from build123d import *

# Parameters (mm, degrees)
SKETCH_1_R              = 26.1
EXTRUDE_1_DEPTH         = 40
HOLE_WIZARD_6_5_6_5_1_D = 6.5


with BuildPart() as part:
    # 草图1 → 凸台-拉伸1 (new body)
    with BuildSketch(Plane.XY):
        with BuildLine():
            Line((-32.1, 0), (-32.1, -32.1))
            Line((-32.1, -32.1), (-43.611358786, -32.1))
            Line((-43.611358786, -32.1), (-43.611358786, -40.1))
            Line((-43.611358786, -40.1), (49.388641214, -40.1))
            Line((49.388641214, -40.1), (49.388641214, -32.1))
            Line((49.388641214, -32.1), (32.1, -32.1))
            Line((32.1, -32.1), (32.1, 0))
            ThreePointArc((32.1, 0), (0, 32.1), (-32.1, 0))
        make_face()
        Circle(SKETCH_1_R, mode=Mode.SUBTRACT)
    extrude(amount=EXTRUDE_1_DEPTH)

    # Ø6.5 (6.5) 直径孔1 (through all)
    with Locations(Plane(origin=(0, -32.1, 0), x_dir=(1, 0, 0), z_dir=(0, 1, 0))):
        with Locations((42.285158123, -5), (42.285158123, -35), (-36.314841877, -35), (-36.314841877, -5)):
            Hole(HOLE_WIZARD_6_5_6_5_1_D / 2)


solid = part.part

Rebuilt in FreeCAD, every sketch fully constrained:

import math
import FreeCAD as App
import Part
import Sketcher

V = App.Vector
Q = App.Units.Quantity

doc = App.newDocument("Part")
body = doc.addObject("PartDesign::Body", "Body")

# Sketch on XY plane
sketch1 = body.newObject("Sketcher::SketchObject", "Sketch")
sketch1.AttachmentSupport = (doc.getObject("XY_Plane"), [""])
sketch1.MapMode = "FlatFace"
sketch1.addGeometry([
    Part.LineSegment(V(-32, 0, 0), V(-32, -32, 0)),  # 0
    Part.LineSegment(V(-32, -32, 0), V(-44, -32, 0)),  # 1
    Part.LineSegment(V(-44, -32, 0), V(-44, -40, 0)),  # 2
    Part.LineSegment(V(-44, -40, 0), V(49, -40, 0)),  # 3
    Part.LineSegment(V(49, -40, 0), V(49, -32, 0)),  # 4
    Part.LineSegment(V(49, -32, 0), V(32, -32, 0)),  # 5
    Part.LineSegment(V(32, -32, 0), V(32, 0, 0)),  # 6
    Part.ArcOfCircle(Part.Circle(V(0, 0, 0), V(0, 0, 1), 32), math.radians(0), math.radians(180)),  # 7
    Part.Circle(V(0, 0, 0), V(0, 0, 1), 26),  # 8
], False)
sketch1.addConstraint([
    Sketcher.Constraint("Coincident", 0, 2, 1, 1),
    Sketcher.Constraint("Coincident", 1, 2, 2, 1),
    Sketcher.Constraint("Coincident", 2, 2, 3, 1),
    Sketcher.Constraint("Coincident", 3, 2, 4, 1),
    Sketcher.Constraint("Coincident", 4, 2, 5, 1),
    Sketcher.Constraint("Coincident", 5, 2, 6, 1),
    Sketcher.Constraint("Tangent", 6, 2, 7, 1),
    Sketcher.Constraint("Tangent", 7, 2, 0, 1),
    Sketcher.Constraint("Vertical", 0),
    Sketcher.Constraint("Horizontal", 1),
    Sketcher.Constraint("Vertical", 2),
    Sketcher.Constraint("Horizontal", 3),
    Sketcher.Constraint("Vertical", 4),
    Sketcher.Constraint("Horizontal", 5),
    Sketcher.Constraint("Vertical", 6),
    Sketcher.Constraint("Coincident", 7, 3, -1, 1),
    Sketcher.Constraint("Coincident", 8, 3, -1, 1),
    Sketcher.Constraint("Horizontal", 1, 2, 4, 2),
    Sketcher.Constraint("Diameter", 8, Q("52.2 mm")),
    Sketcher.Constraint("Radius", 7, Q("32.1 mm")),
    Sketcher.Constraint("DistanceX", 3, 1, 3, 2, Q("93 mm")),
    Sketcher.Constraint("DistanceY", 2, 2, 2, 1, Q("8 mm")),
    Sketcher.Constraint("DistanceY", 0, 2, 0, 1, Q("32.1 mm")),
    Sketcher.Constraint("DistanceX", 1, 2, 1, 1, Q("11.511359 mm")),
])
pad1 = body.newObject("PartDesign::Pad", "Pad")
pad1.Profile = sketch1
pad1.Length = 40

# Sketch on XZ plane
sketch2 = body.newObject("Sketcher::SketchObject", "Sketch001")
sketch2.AttachmentSupport = (doc.getObject("XZ_Plane"), [""])
sketch2.MapMode = "FlatFace"
sketch2.AttachmentOffset = App.Placement(V(0, 0, 32.1), App.Rotation())
sketch2.addGeometry([
    Part.Circle(V(42.3, 5, 0), V(0, 0, 1), 3.2),
    Part.Circle(V(42.3, 35, 0), V(0, 0, 1), 3.2),
    Part.Circle(V(-36.3, 35, 0), V(0, 0, 1), 3.2),
    Part.Circle(V(-36.3, 5, 0), V(0, 0, 1), 3.2),
], False)
sketch2.addConstraint([
    Sketcher.Constraint("Equal", 0, 1),
    Sketcher.Constraint("Equal", 1, 2),
    Sketcher.Constraint("Equal", 2, 3),
    Sketcher.Constraint("Horizontal", 1, 3, 2, 3),
    Sketcher.Constraint("Horizontal", 0, 3, 3, 3),
    Sketcher.Constraint("Vertical", 0, 3, 1, 3),
    Sketcher.Constraint("Vertical", 2, 3, 3, 3),
    Sketcher.Constraint("Diameter", 0, Q("6.5 mm")),
    Sketcher.Constraint("DistanceY", -1, 1, 0, 3, Q("5 mm")),
    Sketcher.Constraint("DistanceY", -1, 1, 1, 3, Q("35 mm")),
    Sketcher.Constraint("DistanceX", 2, 3, 1, 3, Q("78.6 mm")),
    Sketcher.Constraint("DistanceX", -1, 1, 0, 3, Q("42.285158 mm")),
])
doc.recompute()
hole = body.newObject("PartDesign::Hole", "Hole")
hole.Profile = sketch2
hole.ThreadType = "None"
hole.Diameter = 6.5
hole.DepthType = "ThroughAll"
hole.Reversed = True

doc.recompute()
